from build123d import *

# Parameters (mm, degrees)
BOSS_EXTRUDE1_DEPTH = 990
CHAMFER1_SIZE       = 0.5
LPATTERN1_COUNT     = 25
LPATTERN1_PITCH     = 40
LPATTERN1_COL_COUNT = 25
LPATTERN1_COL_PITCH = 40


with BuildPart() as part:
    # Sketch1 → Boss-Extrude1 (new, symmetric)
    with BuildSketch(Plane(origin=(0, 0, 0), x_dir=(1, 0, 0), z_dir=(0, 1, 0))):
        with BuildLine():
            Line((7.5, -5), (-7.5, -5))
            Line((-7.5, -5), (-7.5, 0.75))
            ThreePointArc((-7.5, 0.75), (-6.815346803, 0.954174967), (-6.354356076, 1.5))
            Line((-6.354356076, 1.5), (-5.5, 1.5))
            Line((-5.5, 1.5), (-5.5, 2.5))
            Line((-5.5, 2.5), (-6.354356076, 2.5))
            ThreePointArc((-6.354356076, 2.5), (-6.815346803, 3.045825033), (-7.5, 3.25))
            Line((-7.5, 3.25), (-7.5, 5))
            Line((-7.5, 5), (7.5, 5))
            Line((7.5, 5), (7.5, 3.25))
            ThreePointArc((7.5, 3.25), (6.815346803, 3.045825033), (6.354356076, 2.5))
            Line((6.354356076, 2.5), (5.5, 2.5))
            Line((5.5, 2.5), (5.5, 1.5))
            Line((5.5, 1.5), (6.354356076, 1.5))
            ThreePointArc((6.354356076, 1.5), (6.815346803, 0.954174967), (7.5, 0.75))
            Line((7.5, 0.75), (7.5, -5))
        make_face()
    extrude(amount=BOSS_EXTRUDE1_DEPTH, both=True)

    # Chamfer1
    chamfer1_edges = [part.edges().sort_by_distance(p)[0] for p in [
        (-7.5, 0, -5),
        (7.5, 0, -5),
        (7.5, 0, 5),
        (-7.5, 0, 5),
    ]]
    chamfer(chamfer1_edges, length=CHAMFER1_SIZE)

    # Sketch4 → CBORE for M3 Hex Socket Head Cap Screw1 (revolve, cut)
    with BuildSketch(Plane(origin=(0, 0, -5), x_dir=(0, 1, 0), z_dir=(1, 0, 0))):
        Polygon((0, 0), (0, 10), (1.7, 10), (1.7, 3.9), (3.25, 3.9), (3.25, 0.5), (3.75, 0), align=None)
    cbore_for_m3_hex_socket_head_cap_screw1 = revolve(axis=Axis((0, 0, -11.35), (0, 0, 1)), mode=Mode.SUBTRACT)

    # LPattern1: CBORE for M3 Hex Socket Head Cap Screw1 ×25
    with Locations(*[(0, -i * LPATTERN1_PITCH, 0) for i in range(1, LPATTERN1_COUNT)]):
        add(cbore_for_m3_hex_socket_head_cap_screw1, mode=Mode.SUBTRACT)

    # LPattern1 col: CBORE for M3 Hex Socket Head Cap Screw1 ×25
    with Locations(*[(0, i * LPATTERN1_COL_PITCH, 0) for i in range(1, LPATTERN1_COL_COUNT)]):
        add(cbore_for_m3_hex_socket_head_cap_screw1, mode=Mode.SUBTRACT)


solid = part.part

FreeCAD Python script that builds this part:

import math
import FreeCAD as App
import Part
import Sketcher
from FreeCAD import Vector
Q = App.Units.Quantity


def edges_at(feature, points):
    """Names of the edges that pass closest to the given points."""
    edges = feature.Shape.Edges
    near = lambda p: min(range(len(edges)), key=lambda i: edges[i].distToShape(Part.Vertex(*p))[0])
    return sorted({f"Edge{near(p) + 1}" for p in points})

doc = App.newDocument("Part")
params = doc.addObject("Spreadsheet::Sheet", "Params")
for row, (alias, value) in enumerate([
    ("sketch1_width", "15 mm"),
    ("sketch1_height", "1 mm"),
    ("sketch1_radius", "1.25 mm"),
    ("pad1_length", "1980 mm"),
    ("chamfer_size", "0.5 mm"),
    ("sketch2_height", "10 mm"),
    ("sketch2_width", "1.7 mm"),
    ("sketch2_height2", "3.4 mm"),
    ("sketch2_height3", "6.1 mm"),
    ("sketch2_width2", "3.75 mm"),
    ("groove_angle", "360 deg"),
    ("linearpattern_pitch", "40 mm"),
    ("linearpattern2_pitch", "40 mm"),
], start=1):
    params.set(f"A{row}", alias)
    params.set(f"B{row}", "=" + value)
    params.setAlias(f"B{row}", alias)

body = doc.addObject("PartDesign::Body", "Body")

sketch1 = body.newObject("Sketcher::SketchObject", "Sketch")
sketch1.AttachmentSupport = (doc.getObject("XZ_Plane"), [""])
sketch1.MapMode = "FlatFace"
sketch1.addGeometry([
    Part.LineSegment(Vector(-7.5, 5, 0), Vector(7.5, 5, 0)),
    Part.LineSegment(Vector(7.5, 5, 0), Vector(7.5, -0.75, 0)),
    Part.ArcOfCircle(Part.Circle(Vector(7.5, -2, 0), Vector(0, 0, 1), 1.25), math.radians(90), math.radians(156.421821)),
    Part.LineSegment(Vector(6.354356, -1.5, 0), Vector(5.5, -1.5, 0)),
    Part.LineSegment(Vector(5.5, -1.5, 0), Vector(5.5, -2.5, 0)),
    Part.LineSegment(Vector(5.5, -2.5, 0), Vector(6.354356, -2.5, 0)),
    Part.ArcOfCircle(Part.Circle(Vector(7.5, -2, 0), Vector(0, 0, 1), 1.25), math.radians(-156.421821), math.radians(-90)),
    Part.LineSegment(Vector(7.5, -3.25, 0), Vector(7.5, -5, 0)),
    Part.LineSegment(Vector(7.5, -5, 0), Vector(-7.5, -5, 0)),
    Part.LineSegment(Vector(-7.5, -5, 0), Vector(-7.5, -3.25, 0)),
    Part.ArcOfCircle(Part.Circle(Vector(-7.5, -2, 0), Vector(0, 0, 1), 1.25), math.radians(-90), math.radians(-23.578179)),
    Part.LineSegment(Vector(-6.354356, -2.5, 0), Vector(-5.5, -2.5, 0)),
    Part.LineSegment(Vector(-5.5, -2.5, 0), Vector(-5.5, -1.5, 0)),
    Part.LineSegment(Vector(-5.5, -1.5, 0), Vector(-6.354356, -1.5, 0)),
    Part.ArcOfCircle(Part.Circle(Vector(-7.5, -2, 0), Vector(0, 0, 1), 1.25), math.radians(23.578179), math.radians(90)),
    Part.LineSegment(Vector(-7.5, -0.75, 0), Vector(-7.5, 5, 0)),
], False)
sketch1.addConstraint([
    Sketcher.Constraint("Coincident", 0, 2, 1, 1),
    Sketcher.Constraint("Coincident", 1, 2, 2, 1),
    Sketcher.Constraint("Coincident", 2, 2, 3, 1),
    Sketcher.Constraint("Coincident", 3, 2, 4, 1),
    Sketcher.Constraint("Coincident", 4, 2, 5, 1),
    Sketcher.Constraint("Coincident", 5, 2, 6, 1),
    Sketcher.Constraint("Coincident", 6, 2, 7, 1),
    Sketcher.Constraint("Coincident", 7, 2, 8, 1),
    Sketcher.Constraint("Coincident", 8, 2, 9, 1),
    Sketcher.Constraint("Coincident", 9, 2, 10, 1),
    Sketcher.Constraint("Coincident", 10, 2, 11, 1),
    Sketcher.Constraint("Coincident", 11, 2, 12, 1),
    Sketcher.Constraint("Coincident", 12, 2, 13, 1),
    Sketcher.Constraint("Coincident", 13, 2, 14, 1),
    Sketcher.Constraint("Coincident", 14, 2, 15, 1),
    Sketcher.Constraint("Coincident", 15, 2, 0, 1),
    Sketcher.Constraint("Horizontal", 0),
    Sketcher.Constraint("Vertical", 1),
    Sketcher.Constraint("Horizontal", 3),
    Sketcher.Constraint("Vertical", 4),
    Sketcher.Constraint("Horizontal", 5),
    Sketcher.Constraint("Vertical", 7),
    Sketcher.Constraint("Horizontal", 8),
    Sketcher.Constraint("Vertical", 9),
    Sketcher.Constraint("Horizontal", 11),
    Sketcher.Constraint("Vertical", 12),
    Sketcher.Constraint("Horizontal", 13),
    Sketcher.Constraint("Vertical", 15),
    Sketcher.Constraint("Coincident", 6, 3, 2, 3),
    Sketcher.Constraint("Coincident", 14, 3, 10, 3),
    Sketcher.Constraint("Equal", 2, 6),
    Sketcher.Constraint("Equal", 6, 10),
    Sketcher.Constraint("Equal", 10, 14),
    Sketcher.Constraint("Symmetric", 0, 2, 8, 2, -1, 1),
    Sketcher.Constraint("Symmetric", 2, 3, 10, 3, -2),
    Sketcher.Constraint("Symmetric", 4, 2, 11, 2, -2),
    Sketcher.Constraint("Horizontal", 3, 2, 12, 2),
    Sketcher.Constraint("Vertical", 6, 3, 0, 2),
    Sketcher.Constraint("Vertical", 2, 2, 5, 2),
    Sketcher.Constraint("Vertical", 1, 2, 6, 2),
    Sketcher.Constraint("Vertical", 9, 2, 14, 2),
    Sketcher.Constraint("DistanceX", 0, 1, 0, 2, Q("15 mm")),
    Sketcher.Constraint("DistanceY", 4, 2, 4, 1, Q("1 mm")),
    Sketcher.Constraint("Radius", 2, Q("1.25 mm")),
    Sketcher.Constraint("DistanceY", 2, 3, -1, 1, Q("2 mm")),
    Sketcher.Constraint("DistanceY", -1, 1, 0, 2, Q("5 mm")),
    Sketcher.Constraint("DistanceX", 3, 2, 6, 3, Q("2 mm")),
])
sketch1.setExpression("Constraints[41]", "Params.sketch1_width")
sketch1.setExpression("Constraints[42]", "Params.sketch1_height")
sketch1.setExpression("Constraints[43]", "Params.sketch1_radius")
pad1 = body.newObject("PartDesign::Pad", "Pad")
pad1.Profile = sketch1
pad1.setExpression("Length", "Params.pad1_length")
pad1.Midplane = True
doc.recompute()

chamfer = body.newObject("PartDesign::Chamfer", "Chamfer")
chamfer.Base = (pad1, edges_at(pad1, [
    (-7.5, 0, -5),
    (7.5, 0, -5),
    (7.5, 0, 5),
    (-7.5, 0, 5),
]))
chamfer.setExpression("Size", "Params.chamfer_size")

sketch2 = body.newObject("Sketcher::SketchObject", "Sketch001")
sketch2.AttachmentSupport = (doc.getObject("YZ_Plane"), [""])
sketch2.MapMode = "FlatFace"
sketch2.addGeometry([
    Part.LineSegment(Vector(0, 5, 0), Vector(0, -5, 0)),
    Part.LineSegment(Vector(0, -5, 0), Vector(3.75, -5, 0)),
    Part.LineSegment(Vector(3.75, -5, 0), Vector(3.25, -4.5, 0)),
    Part.LineSegment(Vector(3.25, -4.5, 0), Vector(3.25, -1.1, 0)),
    Part.LineSegment(Vector(3.25, -1.1, 0), Vector(1.7, -1.1, 0)),
    Part.LineSegment(Vector(1.7, -1.1, 0), Vector(1.7, 5, 0)),
    Part.LineSegment(Vector(1.7, 5, 0), Vector(0, 5, 0)),
], False)
sketch2.addConstraint([
    Sketcher.Constraint("Coincident", 0, 2, 1, 1),
    Sketcher.Constraint("Coincident", 1, 2, 2, 1),
    Sketcher.Constraint("Coincident", 2, 2, 3, 1),
    Sketcher.Constraint("Coincident", 3, 2, 4, 1),
    Sketcher.Constraint("Coincident", 4, 2, 5, 1),
    Sketcher.Constraint("Coincident", 5, 2, 6, 1),
    Sketcher.Constraint("Coincident", 6, 2, 0, 1),
    Sketcher.Constraint("Vertical", 0),
    Sketcher.Constraint("Horizontal", 1),
    Sketcher.Constraint("Vertical", 3),
    Sketcher.Constraint("Horizontal", 4),
    Sketcher.Constraint("Vertical", 5),
    Sketcher.Constraint("Horizontal", 6),
    Sketcher.Constraint("Symmetric", 0, 2, 6, 2, -1, 1),
    Sketcher.Constraint("DistanceY", 0, 2, 0, 1, Q("10 mm")),
    Sketcher.Constraint("Angle", 2, Q("135 deg")),
    Sketcher.Constraint("DistanceX", 6, 2, 6, 1, Q("1.7 mm")),
    Sketcher.Constraint("DistanceY", 3, 1, 3, 2, Q("3.4 mm")),
    Sketcher.Constraint("DistanceY", 5, 1, 5, 2, Q("6.1 mm")),
    Sketcher.Constraint("DistanceX", 1, 1, 1, 2, Q("3.75 mm")),
])
sketch2.setExpression("Constraints[14]", "Params.sketch2_height")
sketch2.setExpression("Constraints[16]", "Params.sketch2_width")
sketch2.setExpression("Constraints[17]", "Params.sketch2_height2")
sketch2.setExpression("Constraints[18]", "Params.sketch2_height3")
sketch2.setExpression("Constraints[19]", "Params.sketch2_width2")
groove = body.newObject("PartDesign::Groove", "Groove")
groove.Profile = sketch2
groove.ReferenceAxis = (sketch2, ["V_Axis"])
groove.setExpression("Angle", "Params.groove_angle")
doc.recompute()

linearpattern = body.newObject("PartDesign::LinearPattern", "LinearPattern")
linearpattern.Originals = [groove]
linearpattern.Direction = (doc.getObject("Y_Axis"), [""])
linearpattern.Mode = "offset"
linearpattern.setExpression("Offset", "Params.linearpattern_pitch")
linearpattern.Occurrences = 25
linearpattern.Reversed = True
body.Tip = linearpattern
doc.recompute()

linearpattern2 = body.newObject("PartDesign::LinearPattern", "LinearPattern001")
linearpattern2.Originals = [groove]
linearpattern2.Direction = (doc.getObject("Y_Axis"), [""])
linearpattern2.Mode = "offset"
linearpattern2.setExpression("Offset", "Params.linearpattern2_pitch")
linearpattern2.Occurrences = 25
body.Tip = linearpattern2

doc.recompute()
